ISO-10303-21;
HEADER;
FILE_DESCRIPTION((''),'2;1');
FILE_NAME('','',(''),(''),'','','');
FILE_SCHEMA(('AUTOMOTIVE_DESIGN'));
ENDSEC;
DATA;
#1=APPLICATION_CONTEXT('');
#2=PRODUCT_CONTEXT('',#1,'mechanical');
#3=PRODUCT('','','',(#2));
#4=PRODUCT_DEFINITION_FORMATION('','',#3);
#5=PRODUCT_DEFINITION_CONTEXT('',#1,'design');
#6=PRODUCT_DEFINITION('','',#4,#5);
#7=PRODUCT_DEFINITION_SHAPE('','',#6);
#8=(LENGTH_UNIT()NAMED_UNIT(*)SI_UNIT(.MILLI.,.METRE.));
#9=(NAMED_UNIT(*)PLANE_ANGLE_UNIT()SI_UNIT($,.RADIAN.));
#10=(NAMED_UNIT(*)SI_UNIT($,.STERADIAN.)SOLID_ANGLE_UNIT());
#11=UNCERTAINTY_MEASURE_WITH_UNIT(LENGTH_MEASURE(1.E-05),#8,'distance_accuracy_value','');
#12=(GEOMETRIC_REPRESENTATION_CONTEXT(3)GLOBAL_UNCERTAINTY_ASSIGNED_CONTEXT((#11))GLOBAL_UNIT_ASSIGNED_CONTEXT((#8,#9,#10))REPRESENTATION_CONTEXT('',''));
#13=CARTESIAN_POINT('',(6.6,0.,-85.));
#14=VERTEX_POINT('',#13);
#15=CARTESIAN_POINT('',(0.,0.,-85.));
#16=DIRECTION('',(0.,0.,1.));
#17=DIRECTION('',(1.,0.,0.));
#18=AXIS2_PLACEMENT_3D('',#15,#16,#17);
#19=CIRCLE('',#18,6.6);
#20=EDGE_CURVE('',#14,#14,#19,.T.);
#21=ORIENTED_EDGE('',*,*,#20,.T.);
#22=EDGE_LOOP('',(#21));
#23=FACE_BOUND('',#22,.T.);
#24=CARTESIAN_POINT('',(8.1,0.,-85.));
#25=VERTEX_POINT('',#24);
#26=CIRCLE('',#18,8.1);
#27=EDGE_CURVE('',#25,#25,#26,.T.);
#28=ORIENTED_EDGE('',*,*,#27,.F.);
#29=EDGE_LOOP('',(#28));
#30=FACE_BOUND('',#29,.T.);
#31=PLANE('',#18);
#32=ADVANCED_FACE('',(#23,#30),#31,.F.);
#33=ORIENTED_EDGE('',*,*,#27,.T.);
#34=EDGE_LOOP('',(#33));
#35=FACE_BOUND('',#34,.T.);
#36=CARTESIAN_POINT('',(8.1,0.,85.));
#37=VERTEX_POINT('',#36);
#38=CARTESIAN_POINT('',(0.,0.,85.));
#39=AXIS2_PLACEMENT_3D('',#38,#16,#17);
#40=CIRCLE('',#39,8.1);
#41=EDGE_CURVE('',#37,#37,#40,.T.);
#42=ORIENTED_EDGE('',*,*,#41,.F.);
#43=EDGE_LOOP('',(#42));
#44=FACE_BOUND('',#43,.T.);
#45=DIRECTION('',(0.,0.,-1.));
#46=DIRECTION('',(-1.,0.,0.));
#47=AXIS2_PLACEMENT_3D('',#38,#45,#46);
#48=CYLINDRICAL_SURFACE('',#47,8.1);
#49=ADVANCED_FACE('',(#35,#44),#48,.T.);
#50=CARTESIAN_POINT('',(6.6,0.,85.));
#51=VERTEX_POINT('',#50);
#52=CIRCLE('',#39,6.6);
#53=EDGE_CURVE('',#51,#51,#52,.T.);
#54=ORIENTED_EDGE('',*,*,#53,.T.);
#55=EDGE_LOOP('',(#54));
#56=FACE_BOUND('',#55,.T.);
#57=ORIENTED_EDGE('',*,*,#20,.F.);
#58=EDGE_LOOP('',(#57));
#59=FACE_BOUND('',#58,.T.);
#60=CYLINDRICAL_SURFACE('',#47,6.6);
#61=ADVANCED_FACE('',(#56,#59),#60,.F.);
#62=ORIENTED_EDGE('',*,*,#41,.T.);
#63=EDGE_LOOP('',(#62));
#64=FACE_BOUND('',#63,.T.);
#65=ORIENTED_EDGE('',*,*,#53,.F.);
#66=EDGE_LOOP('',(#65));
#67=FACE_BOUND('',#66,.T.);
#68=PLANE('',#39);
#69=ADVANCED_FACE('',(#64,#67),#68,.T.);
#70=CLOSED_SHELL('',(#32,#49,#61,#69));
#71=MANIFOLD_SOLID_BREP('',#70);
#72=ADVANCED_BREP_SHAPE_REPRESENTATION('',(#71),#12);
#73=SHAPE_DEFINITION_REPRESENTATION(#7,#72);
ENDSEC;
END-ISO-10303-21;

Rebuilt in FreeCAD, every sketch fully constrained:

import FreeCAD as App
import Part
import Sketcher
Q = App.Units.Quantity

doc = App.newDocument("Part")
params = doc.addObject("Spreadsheet::Sheet", "Params")
for row, (alias, value) in enumerate([
    ("sketch1_diameter", "16.2 mm"),
    ("sketch1_diameter2", "13.2 mm"),
    ("pad1_length", "170 mm"),
], start=1):
    params.set(f"A{row}", alias)
    params.set(f"B{row}", "=" + value)
    params.setAlias(f"B{row}", alias)

body = doc.addObject("PartDesign::Body", "Body")

sketch1 = doc.addObject("Sketcher::SketchObject", "Sketch")
body.addObject(sketch1)
sketch1.AttachmentSupport = (doc.XY_Plane, [""])
sketch1.MapMode = "FlatFace"
sketch1.addGeometry([
    Part.Circle(App.Vector(0, 0, 0), App.Vector(0, 0, 1), 8),
    Part.Circle(App.Vector(0, 0, 0), App.Vector(0, 0, 1), 7),
], False)
sketch1.addConstraint([
    Sketcher.Constraint("Coincident", 0, 3, -1, 1),
    Sketcher.Constraint("Coincident", 1, 3, -1, 1),
    Sketcher.Constraint("Diameter", 0, Q("16.2 mm")),
    Sketcher.Constraint("Diameter", 1, Q("13.2 mm")),
])
sketch1.setExpression("Constraints[2]", "Params.sketch1_diameter")
sketch1.setExpression("Constraints[3]", "Params.sketch1_diameter2")
pad1 = doc.addObject("PartDesign::Pad", "Pad")
body.addObject(pad1)
pad1.Profile = sketch1
pad1.setExpression("Length", "Params.pad1_length")
pad1.Midplane = True

doc.recompute()
